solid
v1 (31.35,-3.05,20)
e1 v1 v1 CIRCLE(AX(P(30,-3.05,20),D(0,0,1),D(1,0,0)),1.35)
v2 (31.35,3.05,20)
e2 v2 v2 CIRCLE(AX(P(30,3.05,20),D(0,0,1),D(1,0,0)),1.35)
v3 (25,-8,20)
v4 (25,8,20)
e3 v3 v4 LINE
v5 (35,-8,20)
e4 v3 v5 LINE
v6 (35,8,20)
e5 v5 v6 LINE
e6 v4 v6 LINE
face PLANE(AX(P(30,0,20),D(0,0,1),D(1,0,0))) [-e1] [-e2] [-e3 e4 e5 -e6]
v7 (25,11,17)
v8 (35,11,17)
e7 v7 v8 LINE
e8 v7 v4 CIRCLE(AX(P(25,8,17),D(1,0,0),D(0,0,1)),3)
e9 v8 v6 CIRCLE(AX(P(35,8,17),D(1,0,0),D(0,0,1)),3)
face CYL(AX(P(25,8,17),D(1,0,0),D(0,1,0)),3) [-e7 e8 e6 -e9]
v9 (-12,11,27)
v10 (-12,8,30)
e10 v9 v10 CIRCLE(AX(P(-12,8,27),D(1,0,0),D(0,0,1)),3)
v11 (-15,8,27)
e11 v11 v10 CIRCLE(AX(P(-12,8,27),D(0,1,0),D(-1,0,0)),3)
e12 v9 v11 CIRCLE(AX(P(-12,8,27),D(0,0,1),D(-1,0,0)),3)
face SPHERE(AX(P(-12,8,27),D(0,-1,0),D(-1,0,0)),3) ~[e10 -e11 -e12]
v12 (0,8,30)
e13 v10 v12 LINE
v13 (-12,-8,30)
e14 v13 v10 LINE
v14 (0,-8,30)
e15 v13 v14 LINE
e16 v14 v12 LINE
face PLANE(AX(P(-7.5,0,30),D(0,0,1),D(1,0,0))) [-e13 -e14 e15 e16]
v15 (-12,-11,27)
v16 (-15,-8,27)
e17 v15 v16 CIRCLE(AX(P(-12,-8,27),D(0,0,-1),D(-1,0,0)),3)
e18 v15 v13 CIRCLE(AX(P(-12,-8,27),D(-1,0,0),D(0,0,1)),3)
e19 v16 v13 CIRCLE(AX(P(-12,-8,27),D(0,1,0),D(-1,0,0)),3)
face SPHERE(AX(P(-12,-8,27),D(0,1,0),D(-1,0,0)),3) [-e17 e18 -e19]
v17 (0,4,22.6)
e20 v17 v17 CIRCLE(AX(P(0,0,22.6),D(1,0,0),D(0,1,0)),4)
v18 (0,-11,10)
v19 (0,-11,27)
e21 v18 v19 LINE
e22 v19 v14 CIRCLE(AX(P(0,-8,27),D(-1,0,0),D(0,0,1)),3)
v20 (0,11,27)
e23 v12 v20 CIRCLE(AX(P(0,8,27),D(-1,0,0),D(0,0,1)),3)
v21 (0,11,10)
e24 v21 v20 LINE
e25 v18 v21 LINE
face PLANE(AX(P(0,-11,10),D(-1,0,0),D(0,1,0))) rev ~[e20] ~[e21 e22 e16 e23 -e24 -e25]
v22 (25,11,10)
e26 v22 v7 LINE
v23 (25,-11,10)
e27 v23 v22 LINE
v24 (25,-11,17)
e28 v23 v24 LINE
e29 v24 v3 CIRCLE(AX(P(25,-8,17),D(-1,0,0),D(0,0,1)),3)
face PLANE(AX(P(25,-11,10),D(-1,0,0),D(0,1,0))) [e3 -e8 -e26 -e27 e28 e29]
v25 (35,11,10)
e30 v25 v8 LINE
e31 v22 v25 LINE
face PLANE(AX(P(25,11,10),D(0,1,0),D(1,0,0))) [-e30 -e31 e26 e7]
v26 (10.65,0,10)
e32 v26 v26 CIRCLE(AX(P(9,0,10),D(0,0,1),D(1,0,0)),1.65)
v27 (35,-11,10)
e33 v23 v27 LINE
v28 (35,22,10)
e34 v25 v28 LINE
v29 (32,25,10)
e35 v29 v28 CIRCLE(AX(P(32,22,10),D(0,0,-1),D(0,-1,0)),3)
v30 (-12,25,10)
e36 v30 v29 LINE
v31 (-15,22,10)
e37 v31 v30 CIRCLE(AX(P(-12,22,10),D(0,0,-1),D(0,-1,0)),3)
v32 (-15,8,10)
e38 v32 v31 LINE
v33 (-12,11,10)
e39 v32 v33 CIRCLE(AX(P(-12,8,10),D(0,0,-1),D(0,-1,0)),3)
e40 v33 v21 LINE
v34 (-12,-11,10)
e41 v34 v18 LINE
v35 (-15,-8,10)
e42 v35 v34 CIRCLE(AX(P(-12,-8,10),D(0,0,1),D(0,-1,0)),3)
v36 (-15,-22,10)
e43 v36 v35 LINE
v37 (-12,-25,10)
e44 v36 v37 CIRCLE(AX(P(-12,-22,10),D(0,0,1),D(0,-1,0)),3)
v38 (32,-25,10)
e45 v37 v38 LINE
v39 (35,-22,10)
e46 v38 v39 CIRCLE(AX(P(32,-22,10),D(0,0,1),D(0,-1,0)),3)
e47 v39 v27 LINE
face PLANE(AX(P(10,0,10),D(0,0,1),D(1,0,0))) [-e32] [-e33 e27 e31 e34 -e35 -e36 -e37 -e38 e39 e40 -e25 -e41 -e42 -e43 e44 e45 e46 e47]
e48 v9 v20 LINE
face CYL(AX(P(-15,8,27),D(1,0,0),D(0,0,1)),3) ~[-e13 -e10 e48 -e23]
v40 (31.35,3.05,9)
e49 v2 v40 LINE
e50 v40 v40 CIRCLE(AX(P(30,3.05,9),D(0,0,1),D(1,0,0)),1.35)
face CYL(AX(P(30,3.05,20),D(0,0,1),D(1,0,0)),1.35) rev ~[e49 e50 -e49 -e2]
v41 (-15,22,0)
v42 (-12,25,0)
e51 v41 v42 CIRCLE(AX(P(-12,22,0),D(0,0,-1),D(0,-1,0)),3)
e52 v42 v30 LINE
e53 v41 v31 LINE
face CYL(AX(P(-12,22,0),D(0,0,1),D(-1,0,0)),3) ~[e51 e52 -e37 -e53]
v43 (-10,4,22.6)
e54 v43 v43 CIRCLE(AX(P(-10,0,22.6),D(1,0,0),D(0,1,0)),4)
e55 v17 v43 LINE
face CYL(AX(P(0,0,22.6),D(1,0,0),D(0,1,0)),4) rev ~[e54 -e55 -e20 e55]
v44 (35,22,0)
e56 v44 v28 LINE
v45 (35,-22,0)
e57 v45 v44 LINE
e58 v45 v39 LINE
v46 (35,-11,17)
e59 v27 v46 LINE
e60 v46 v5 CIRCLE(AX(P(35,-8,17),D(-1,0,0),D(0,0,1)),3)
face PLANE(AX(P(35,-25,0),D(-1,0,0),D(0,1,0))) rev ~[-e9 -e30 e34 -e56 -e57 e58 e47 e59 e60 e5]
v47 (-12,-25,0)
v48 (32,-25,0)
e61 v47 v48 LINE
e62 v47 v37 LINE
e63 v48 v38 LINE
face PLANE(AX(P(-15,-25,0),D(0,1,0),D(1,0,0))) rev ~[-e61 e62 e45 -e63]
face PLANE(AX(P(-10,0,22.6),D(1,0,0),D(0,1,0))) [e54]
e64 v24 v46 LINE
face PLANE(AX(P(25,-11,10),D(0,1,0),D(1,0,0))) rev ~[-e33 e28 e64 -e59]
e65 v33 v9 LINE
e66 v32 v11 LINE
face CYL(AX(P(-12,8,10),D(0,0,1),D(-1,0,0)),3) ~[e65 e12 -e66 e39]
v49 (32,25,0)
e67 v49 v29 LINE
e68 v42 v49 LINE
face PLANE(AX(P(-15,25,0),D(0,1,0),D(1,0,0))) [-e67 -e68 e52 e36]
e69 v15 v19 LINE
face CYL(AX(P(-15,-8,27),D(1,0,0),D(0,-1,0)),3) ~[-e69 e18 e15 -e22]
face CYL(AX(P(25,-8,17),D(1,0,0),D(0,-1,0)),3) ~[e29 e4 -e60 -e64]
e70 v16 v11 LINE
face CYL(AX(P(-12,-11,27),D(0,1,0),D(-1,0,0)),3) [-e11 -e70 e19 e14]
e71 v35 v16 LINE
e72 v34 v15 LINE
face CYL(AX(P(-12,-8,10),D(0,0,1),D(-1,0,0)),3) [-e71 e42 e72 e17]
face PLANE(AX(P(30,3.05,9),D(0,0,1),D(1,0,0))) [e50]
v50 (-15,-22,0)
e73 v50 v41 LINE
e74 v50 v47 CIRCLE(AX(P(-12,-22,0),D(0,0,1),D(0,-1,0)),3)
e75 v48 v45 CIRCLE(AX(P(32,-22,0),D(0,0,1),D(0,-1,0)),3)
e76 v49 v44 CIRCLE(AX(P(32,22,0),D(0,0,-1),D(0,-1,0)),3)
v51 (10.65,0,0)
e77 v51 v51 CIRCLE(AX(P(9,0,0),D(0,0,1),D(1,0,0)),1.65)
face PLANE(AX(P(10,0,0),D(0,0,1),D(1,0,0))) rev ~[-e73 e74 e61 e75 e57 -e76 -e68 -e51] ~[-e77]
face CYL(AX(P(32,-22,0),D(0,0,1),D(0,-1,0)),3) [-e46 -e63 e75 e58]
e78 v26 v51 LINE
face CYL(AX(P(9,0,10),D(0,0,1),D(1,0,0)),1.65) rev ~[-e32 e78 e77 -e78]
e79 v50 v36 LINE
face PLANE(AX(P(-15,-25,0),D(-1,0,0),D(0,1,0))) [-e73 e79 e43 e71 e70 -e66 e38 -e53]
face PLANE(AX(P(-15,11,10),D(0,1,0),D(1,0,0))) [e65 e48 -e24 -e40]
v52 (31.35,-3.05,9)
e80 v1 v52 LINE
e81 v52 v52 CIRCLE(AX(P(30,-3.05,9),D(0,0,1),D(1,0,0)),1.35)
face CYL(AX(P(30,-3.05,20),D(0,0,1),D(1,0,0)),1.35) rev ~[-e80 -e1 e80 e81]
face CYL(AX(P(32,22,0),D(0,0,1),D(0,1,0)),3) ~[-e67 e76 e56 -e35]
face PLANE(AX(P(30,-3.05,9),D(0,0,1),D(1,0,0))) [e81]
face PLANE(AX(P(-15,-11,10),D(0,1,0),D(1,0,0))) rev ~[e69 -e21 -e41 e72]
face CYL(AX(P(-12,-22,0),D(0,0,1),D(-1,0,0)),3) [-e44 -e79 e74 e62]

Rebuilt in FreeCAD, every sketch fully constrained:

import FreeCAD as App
import Part
import Sketcher
from FreeCAD import Vector
Q = App.Units.Quantity


def edges_at(feature, points):
    """Names of the edges that pass closest to the given points."""
    edges = feature.Shape.Edges
    near = lambda p: min(range(len(edges)), key=lambda i: edges[i].distToShape(Part.Vertex(*p))[0])
    return sorted({f"Edge{near(p) + 1}" for p in points})


def add_polygon(sketch, points):
    """Adds a closed chain of lines whose ends are joined by coincident constraints."""
    first, n = sketch.GeometryCount, len(points)
    for a, b in zip(points, points[1:] + points[:1]):
        sketch.addGeometry(Part.LineSegment(App.Vector(*a, 0), App.Vector(*b, 0)), False)
    for i in range(n):
        sketch.addConstraint(Sketcher.Constraint("Coincident", first + i, 2, first + (i + 1) % n, 1))

doc = App.newDocument("Part")
body = doc.addObject("PartDesign::Body", "Body")

# Sketch on XY plane
sketch1 = doc.addObject("Sketcher::SketchObject", "Sketch")
body.addObject(sketch1)
sketch1.AttachmentSupport = (doc.XY_Plane, [""])
sketch1.MapMode = "FlatFace"
add_polygon(sketch1, [(-15, 25), (-15, -25), (35, -25), (35, 25)])  # lines 0-3
sketch1.addConstraint([
    Sketcher.Constraint("Vertical", 0),
    Sketcher.Constraint("Horizontal", 1),
    Sketcher.Constraint("Vertical", 2),
    Sketcher.Constraint("Horizontal", 3),
    Sketcher.Constraint("Equal", 3, 0),
    Sketcher.Constraint("DistanceX", 1, 1, 1, 2, Q("50 mm")),
    Sketcher.Constraint("DistanceX", 0, 2, -1, 1, Q("15 mm")),
    Sketcher.Constraint("DistanceY", 0, 2, -1, 1, Q("25 mm")),
])
pad1 = doc.addObject("PartDesign::Pad", "Pad")
body.addObject(pad1)
pad1.Profile = sketch1
pad1.Length = 10

# Sketch on XY plane
sketch2 = doc.addObject("Sketcher::SketchObject", "Sketch001")
body.addObject(sketch2)
sketch2.AttachmentSupport = (doc.XY_Plane, [""])
sketch2.MapMode = "FlatFace"
sketch2.AttachmentOffset = App.Placement(Vector(0, 0, 10), App.Rotation())
add_polygon(sketch2, [(-15, 11), (-15, -11), (0, -11), (0, 11)])  # lines 0-3
sketch2.addConstraint([
    Sketcher.Constraint("Vertical", 0),
    Sketcher.Constraint("Horizontal", 1),
    Sketcher.Constraint("Vertical", 2),
    Sketcher.Constraint("Horizontal", 3),
    Sketcher.Constraint("Symmetric", 1, 2, 2, 2, -1, 1),
    Sketcher.Constraint("DistanceX", 1, 1, 1, 2, Q("15 mm")),
    Sketcher.Constraint("DistanceY", 0, 2, 0, 1, Q("22 mm")),
])
pad2 = doc.addObject("PartDesign::Pad", "Pad001")
body.addObject(pad2)
pad2.Profile = sketch2
pad2.Length = 20

# Sketch on YZ plane
sketch3 = doc.addObject("Sketcher::SketchObject", "Sketch002")
body.addObject(sketch3)
sketch3.AttachmentSupport = (doc.YZ_Plane, [""])
sketch3.MapMode = "FlatFace"
sketch3.addGeometry(Part.Circle(Vector(0, 22.6, 0), Vector(0, 0, 1), 4), False)
sketch3.addConstraint([
    Sketcher.Constraint("PointOnObject", 0, 3, -2),
    Sketcher.Constraint("Diameter", 0, Q("8 mm")),
    Sketcher.Constraint("DistanceY", -1, 1, 0, 3, Q("22.6 mm")),
])
pocket1 = doc.addObject("PartDesign::Pocket", "Pocket")
body.addObject(pocket1)
pocket1.Profile = sketch3
pocket1.Length = 10

# Sketch on XY plane
sketch4 = doc.addObject("Sketcher::SketchObject", "Sketch003")
body.addObject(sketch4)
sketch4.AttachmentSupport = (doc.XY_Plane, [""])
sketch4.MapMode = "FlatFace"
sketch4.AttachmentOffset = App.Placement(Vector(0, 0, 10), App.Rotation())
sketch4.addGeometry(Part.Circle(Vector(9, 0, 0), Vector(0, 0, 1), 1.6), False)
sketch4.addConstraint([
    Sketcher.Constraint("PointOnObject", 0, 3, -1),
    Sketcher.Constraint("Diameter", 0, Q("3.3 mm")),
    Sketcher.Constraint("DistanceX", -1, 1, 0, 3, Q("9 mm")),
])
pocket2 = doc.addObject("PartDesign::Pocket", "Pocket001")
body.addObject(pocket2)
pocket2.Profile = sketch4
pocket2.Type = "ThroughAll"

# Sketch on XY plane
sketch5 = doc.addObject("Sketcher::SketchObject", "Sketch004")
body.addObject(sketch5)
sketch5.AttachmentSupport = (doc.XY_Plane, [""])
sketch5.MapMode = "FlatFace"
sketch5.AttachmentOffset = App.Placement(Vector(0, 0, 10), App.Rotation())
add_polygon(sketch5, [(25, 11), (25, -11), (35, -11), (35, 11)])  # lines 0-3
sketch5.addConstraint([
    Sketcher.Constraint("Vertical", 0),
    Sketcher.Constraint("Horizontal", 1),
    Sketcher.Constraint("Vertical", 2),
    Sketcher.Constraint("Horizontal", 3),
    Sketcher.Constraint("DistanceX", 1, 1, 1, 2, Q("10 mm")),
    Sketcher.Constraint("DistanceY", 0, 2, 0, 1, Q("22 mm")),
    Sketcher.Constraint("DistanceX", -1, 1, 0, 2, Q("25 mm")),
    Sketcher.Constraint("DistanceY", 0, 2, -1, 1, Q("11 mm")),
])
pad3 = doc.addObject("PartDesign::Pad", "Pad002")
body.addObject(pad3)
pad3.Profile = sketch5
pad3.Length = 10

# Sketch on XY plane
sketch6 = doc.addObject("Sketcher::SketchObject", "Sketch005")
body.addObject(sketch6)
sketch6.AttachmentSupport = (doc.XY_Plane, [""])
sketch6.MapMode = "FlatFace"
sketch6.AttachmentOffset = App.Placement(Vector(0, 0, 20), App.Rotation())
sketch6.addGeometry([
    Part.Circle(Vector(30, 3, 0), Vector(0, 0, 1), 1.4),
    Part.Circle(Vector(30, -3, 0), Vector(0, 0, 1), 1.4),
], False)
sketch6.addConstraint([
    Sketcher.Constraint("Equal", 0, 1),
    Sketcher.Constraint("Symmetric", 0, 3, 1, 3, -1),
    Sketcher.Constraint("Diameter", 0, Q("2.7 mm")),
    Sketcher.Constraint("DistanceX", -1, 1, 0, 3, Q("30 mm")),
    Sketcher.Constraint("DistanceY", 1, 3, 0, 3, Q("6.1 mm")),
])
pocket3 = doc.addObject("PartDesign::Pocket", "Pocket002")
body.addObject(pocket3)
pocket3.Profile = sketch6
pocket3.Length = 11
doc.recompute()

fillet = doc.addObject("PartDesign::Fillet", "Fillet")
body.addObject(fillet)
fillet.Base = (pocket3, edges_at(pocket3, [
    (-15, 0, 30),
    (-15, -25, 5),
    (35, -25, 5),
    (35, 25, 5),
    (-15, 25, 5),
    (-15, 11, 20),
    (-15, -11, 20),
    (-7.5, 11, 30),
    (-7.5, -11, 30),
    (30, 11, 20),
    (30, -11, 20),
]))
fillet.Radius = 3

doc.recompute()
